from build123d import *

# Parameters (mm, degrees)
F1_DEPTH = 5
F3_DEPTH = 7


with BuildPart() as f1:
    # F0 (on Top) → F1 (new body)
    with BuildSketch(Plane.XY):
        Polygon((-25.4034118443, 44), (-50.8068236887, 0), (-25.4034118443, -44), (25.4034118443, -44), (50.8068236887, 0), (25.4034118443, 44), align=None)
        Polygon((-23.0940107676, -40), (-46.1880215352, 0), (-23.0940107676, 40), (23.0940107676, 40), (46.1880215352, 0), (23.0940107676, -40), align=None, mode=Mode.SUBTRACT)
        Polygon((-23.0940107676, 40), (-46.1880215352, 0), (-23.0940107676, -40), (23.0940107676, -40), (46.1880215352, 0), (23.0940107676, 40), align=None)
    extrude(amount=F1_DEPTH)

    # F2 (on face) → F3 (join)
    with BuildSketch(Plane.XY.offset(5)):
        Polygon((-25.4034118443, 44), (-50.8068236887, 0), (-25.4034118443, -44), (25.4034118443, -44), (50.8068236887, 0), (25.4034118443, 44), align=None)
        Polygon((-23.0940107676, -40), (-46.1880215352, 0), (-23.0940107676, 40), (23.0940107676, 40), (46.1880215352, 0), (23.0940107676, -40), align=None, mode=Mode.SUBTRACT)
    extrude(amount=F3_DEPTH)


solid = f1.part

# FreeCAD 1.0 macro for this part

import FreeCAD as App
import Part
import Sketcher
from FreeCAD import Vector
Q = App.Units.Quantity

doc = App.newDocument("Part")
body = doc.addObject("PartDesign::Body", "Body")

# Sketch on XY plane
sketch1 = body.newObject("Sketcher::SketchObject", "Sketch")
sketch1.AttachmentSupport = (doc.getObject("XY_Plane"), [""])
sketch1.MapMode = "FlatFace"
sketch1.addGeometry([
    Part.LineSegment(Vector(-25, 44, 0), Vector(-51, 0, 0)),  # 0
    Part.LineSegment(Vector(-51, 0, 0), Vector(-25, -44, 0)),  # 1
    Part.LineSegment(Vector(-25, -44, 0), Vector(25, -44, 0)),  # 2
    Part.LineSegment(Vector(25, -44, 0), Vector(51, 0, 0)),  # 3
    Part.LineSegment(Vector(51, 0, 0), Vector(25, 44, 0)),  # 4
    Part.LineSegment(Vector(25, 44, 0), Vector(-25, 44, 0)),  # 5
], False)
sketch1.addConstraint([
    Sketcher.Constraint("Coincident", 0, 2, 1, 1),
    Sketcher.Constraint("Coincident", 1, 2, 2, 1),
    Sketcher.Constraint("Coincident", 2, 2, 3, 1),
    Sketcher.Constraint("Coincident", 3, 2, 4, 1),
    Sketcher.Constraint("Coincident", 4, 2, 5, 1),
    Sketcher.Constraint("Coincident", 5, 2, 0, 1),
    Sketcher.Constraint("Horizontal", 2),
    Sketcher.Constraint("Horizontal", 5),
    Sketcher.Constraint("Symmetric", 0, 2, 3, 2, -1, 1),
    Sketcher.Constraint("Symmetric", 1, 2, 4, 2, -1, 1),
    Sketcher.Constraint("PointOnObject", 0, 2, -1),
    Sketcher.Constraint("Parallel", 0, 3),
    Sketcher.Constraint("Vertical", 2, 2, 4, 2),
    Sketcher.Constraint("Angle", 0, Q("-120 deg")),
    Sketcher.Constraint("DistanceY", 1, 2, -1, 1, Q("44 mm")),
    Sketcher.Constraint("DistanceX", 2, 1, 2, 2, Q("50.806824 mm")),
])
pad1 = body.newObject("PartDesign::Pad", "Pad")
pad1.Profile = sketch1
pad1.Length = 5

# Sketch on XY plane
sketch2 = body.newObject("Sketcher::SketchObject", "Sketch001")
sketch2.AttachmentSupport = (doc.getObject("XY_Plane"), [""])
sketch2.MapMode = "FlatFace"
sketch2.AttachmentOffset = App.Placement(Vector(0, 0, 5), App.Rotation())
sketch2.addGeometry([
    Part.LineSegment(Vector(-25, 44, 0), Vector(-51, 0, 0)),  # 0
    Part.LineSegment(Vector(-51, 0, 0), Vector(-25, -44, 0)),  # 1
    Part.LineSegment(Vector(-25, -44, 0), Vector(25, -44, 0)),  # 2
    Part.LineSegment(Vector(25, -44, 0), Vector(51, 0, 0)),  # 3
    Part.LineSegment(Vector(51, 0, 0), Vector(25, 44, 0)),  # 4
    Part.LineSegment(Vector(25, 44, 0), Vector(-25, 44, 0)),  # 5
    Part.LineSegment(Vector(23, -40, 0), Vector(-23, -40, 0)),  # 6
    Part.LineSegment(Vector(-23, -40, 0), Vector(-46, 0, 0)),  # 7
    Part.LineSegment(Vector(-46, 0, 0), Vector(-23, 40, 0)),  # 8
    Part.LineSegment(Vector(-23, 40, 0), Vector(23, 40, 0)),  # 9
    Part.LineSegment(Vector(23, 40, 0), Vector(46, 0, 0)),  # 10
    Part.LineSegment(Vector(46, 0, 0), Vector(23, -40, 0)),  # 11
], False)
sketch2.addConstraint([
    Sketcher.Constraint("Coincident", 0, 2, 1, 1),
    Sketcher.Constraint("Coincident", 1, 2, 2, 1),
    Sketcher.Constraint("Coincident", 2, 2, 3, 1),
    Sketcher.Constraint("Coincident", 3, 2, 4, 1),
    Sketcher.Constraint("Coincident", 4, 2, 5, 1),
    Sketcher.Constraint("Coincident", 5, 2, 0, 1),
    Sketcher.Constraint("Coincident", 6, 2, 7, 1),
    Sketcher.Constraint("Coincident", 7, 2, 8, 1),
    Sketcher.Constraint("Coincident", 8, 2, 9, 1),
    Sketcher.Constraint("Coincident", 9, 2, 10, 1),
    Sketcher.Constraint("Coincident", 10, 2, 11, 1),
    Sketcher.Constraint("Coincident", 11, 2, 6, 1),
    Sketcher.Constraint("Horizontal", 2),
    Sketcher.Constraint("Horizontal", 5),
    Sketcher.Constraint("Horizontal", 6),
    Sketcher.Constraint("Horizontal", 9),
    Sketcher.Constraint("Symmetric", 0, 2, 3, 2, -1, 1),
    Sketcher.Constraint("Symmetric", 1, 2, 4, 2, -1, 1),
    Sketcher.Constraint("Symmetric", 6, 2, 9, 2, -1, 1),
    Sketcher.Constraint("Symmetric", 7, 2, 10, 2, -1, 1),
    Sketcher.Constraint("PointOnObject", 0, 2, -1),
    Sketcher.Constraint("PointOnObject", 7, 2, -1),
    Sketcher.Constraint("Parallel", 0, 3),
    Sketcher.Constraint("Parallel", 4, 7),
    Sketcher.Constraint("Parallel", 3, 8),
    Sketcher.Constraint("Parallel", 8, 11),
    Sketcher.Constraint("Vertical", 2, 2, 4, 2),
    Sketcher.Constraint("Angle", 0, Q("-120 deg")),
    Sketcher.Constraint("DistanceY", 1, 2, -1, 1, Q("44 mm")),
    Sketcher.Constraint("DistanceY", 6, 2, -1, 1, Q("40 mm")),
    Sketcher.Constraint("DistanceX", 6, 2, 6, 1, Q("46.188022 mm")),
    Sketcher.Constraint("DistanceX", 1, 2, 6, 2, Q("2.309401 mm")),
])
pad2 = body.newObject("PartDesign::Pad", "Pad001")
pad2.Profile = sketch2
pad2.Length = 7

doc.recompute()
